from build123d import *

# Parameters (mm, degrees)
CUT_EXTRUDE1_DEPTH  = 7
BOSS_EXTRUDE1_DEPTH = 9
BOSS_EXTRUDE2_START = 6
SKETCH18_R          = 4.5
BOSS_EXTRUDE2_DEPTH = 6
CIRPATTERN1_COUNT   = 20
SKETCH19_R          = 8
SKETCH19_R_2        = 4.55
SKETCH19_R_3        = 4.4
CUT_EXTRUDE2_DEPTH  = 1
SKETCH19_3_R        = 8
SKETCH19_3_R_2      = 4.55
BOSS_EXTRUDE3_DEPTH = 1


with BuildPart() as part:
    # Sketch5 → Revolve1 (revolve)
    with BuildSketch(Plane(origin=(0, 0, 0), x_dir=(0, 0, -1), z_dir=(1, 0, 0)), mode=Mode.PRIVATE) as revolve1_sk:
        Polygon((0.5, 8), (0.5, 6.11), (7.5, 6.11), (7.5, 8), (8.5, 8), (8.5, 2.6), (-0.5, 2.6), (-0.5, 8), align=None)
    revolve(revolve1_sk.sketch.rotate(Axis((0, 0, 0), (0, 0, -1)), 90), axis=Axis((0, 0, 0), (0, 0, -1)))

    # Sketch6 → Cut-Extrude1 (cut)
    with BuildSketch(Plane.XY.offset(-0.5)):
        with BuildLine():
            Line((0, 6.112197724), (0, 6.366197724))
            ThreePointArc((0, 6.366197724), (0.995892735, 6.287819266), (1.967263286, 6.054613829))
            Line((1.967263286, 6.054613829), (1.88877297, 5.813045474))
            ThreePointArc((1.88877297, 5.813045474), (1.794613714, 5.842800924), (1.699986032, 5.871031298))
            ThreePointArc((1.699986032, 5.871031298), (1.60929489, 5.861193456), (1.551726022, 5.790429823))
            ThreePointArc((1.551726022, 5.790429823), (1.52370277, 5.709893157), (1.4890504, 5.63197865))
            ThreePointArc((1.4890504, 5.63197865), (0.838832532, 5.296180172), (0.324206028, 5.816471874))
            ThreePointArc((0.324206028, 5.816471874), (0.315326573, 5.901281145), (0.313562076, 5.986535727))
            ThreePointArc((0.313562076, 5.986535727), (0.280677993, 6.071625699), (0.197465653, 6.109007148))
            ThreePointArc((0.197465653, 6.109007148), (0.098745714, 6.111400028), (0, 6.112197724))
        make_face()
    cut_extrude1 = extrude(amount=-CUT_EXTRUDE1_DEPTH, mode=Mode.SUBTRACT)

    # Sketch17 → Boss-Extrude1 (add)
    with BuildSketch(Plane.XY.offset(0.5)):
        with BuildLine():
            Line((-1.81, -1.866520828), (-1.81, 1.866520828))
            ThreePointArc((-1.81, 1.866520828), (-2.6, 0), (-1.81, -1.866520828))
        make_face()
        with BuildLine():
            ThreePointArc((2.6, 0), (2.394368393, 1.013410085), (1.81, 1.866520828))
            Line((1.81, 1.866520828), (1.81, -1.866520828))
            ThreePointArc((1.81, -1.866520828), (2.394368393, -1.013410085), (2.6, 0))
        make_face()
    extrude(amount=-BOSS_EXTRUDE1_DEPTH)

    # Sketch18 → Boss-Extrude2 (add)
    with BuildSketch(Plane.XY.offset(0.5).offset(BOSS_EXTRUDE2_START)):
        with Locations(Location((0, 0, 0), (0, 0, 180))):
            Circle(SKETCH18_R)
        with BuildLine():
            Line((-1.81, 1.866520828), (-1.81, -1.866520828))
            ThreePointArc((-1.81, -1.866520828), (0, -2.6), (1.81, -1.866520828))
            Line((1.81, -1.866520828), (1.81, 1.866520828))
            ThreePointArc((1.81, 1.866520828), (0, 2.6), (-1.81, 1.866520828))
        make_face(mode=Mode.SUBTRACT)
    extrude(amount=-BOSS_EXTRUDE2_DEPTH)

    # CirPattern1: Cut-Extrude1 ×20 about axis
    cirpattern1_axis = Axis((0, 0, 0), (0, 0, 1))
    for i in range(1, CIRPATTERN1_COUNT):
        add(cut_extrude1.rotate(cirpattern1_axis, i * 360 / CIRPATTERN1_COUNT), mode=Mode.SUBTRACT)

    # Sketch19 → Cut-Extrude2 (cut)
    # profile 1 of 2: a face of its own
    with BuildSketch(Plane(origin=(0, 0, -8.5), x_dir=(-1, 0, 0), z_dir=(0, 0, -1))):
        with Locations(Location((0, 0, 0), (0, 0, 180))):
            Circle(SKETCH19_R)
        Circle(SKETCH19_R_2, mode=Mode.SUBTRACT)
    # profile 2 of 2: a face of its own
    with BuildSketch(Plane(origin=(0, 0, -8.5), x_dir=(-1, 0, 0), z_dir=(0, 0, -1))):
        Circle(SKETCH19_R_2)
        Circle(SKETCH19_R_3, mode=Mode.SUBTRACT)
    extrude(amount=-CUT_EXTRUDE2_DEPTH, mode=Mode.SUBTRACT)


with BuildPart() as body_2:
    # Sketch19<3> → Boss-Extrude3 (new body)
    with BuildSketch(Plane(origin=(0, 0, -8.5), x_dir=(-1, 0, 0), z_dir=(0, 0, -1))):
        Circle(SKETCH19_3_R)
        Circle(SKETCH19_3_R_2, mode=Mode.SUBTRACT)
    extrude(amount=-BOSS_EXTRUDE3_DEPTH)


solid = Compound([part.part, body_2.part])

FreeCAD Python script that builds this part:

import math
import FreeCAD as App
import Part
import Sketcher

V = App.Vector
Q = App.Units.Quantity

doc = App.newDocument("Part")
body = doc.addObject("PartDesign::Body", "Body")

# Sketch on YZ plane
sketch1 = body.newObject("Sketcher::SketchObject", "Sketch")
sketch1.AttachmentSupport = (doc.getObject("YZ_Plane"), [""])
sketch1.MapMode = "FlatFace"
sketch1.addGeometry([
    Part.LineSegment(V(6.1, -0.5, 0), V(8, -0.5, 0)),  # 0
    Part.LineSegment(V(8, -0.5, 0), V(8, 0.5, 0)),  # 1
    Part.LineSegment(V(8, 0.5, 0), V(2.6, 0.5, 0)),  # 2
    Part.LineSegment(V(2.6, 0.5, 0), V(2.6, -8.5, 0)),  # 3
    Part.LineSegment(V(2.6, -8.5, 0), V(8, -8.5, 0)),  # 4
    Part.LineSegment(V(8, -8.5, 0), V(8, -7.5, 0)),  # 5
    Part.LineSegment(V(8, -7.5, 0), V(6.1, -7.5, 0)),  # 6
    Part.LineSegment(V(6.1, -7.5, 0), V(6.1, -0.5, 0)),  # 7
], False)
sketch1.addConstraint([
    Sketcher.Constraint("Coincident", 0, 2, 1, 1),
    Sketcher.Constraint("Coincident", 1, 2, 2, 1),
    Sketcher.Constraint("Coincident", 2, 2, 3, 1),
    Sketcher.Constraint("Coincident", 3, 2, 4, 1),
    Sketcher.Constraint("Coincident", 4, 2, 5, 1),
    Sketcher.Constraint("Coincident", 5, 2, 6, 1),
    Sketcher.Constraint("Coincident", 6, 2, 7, 1),
    Sketcher.Constraint("Coincident", 7, 2, 0, 1),
    Sketcher.Constraint("Horizontal", 0),
    Sketcher.Constraint("Vertical", 1),
    Sketcher.Constraint("Horizontal", 2),
    Sketcher.Constraint("Vertical", 3),
    Sketcher.Constraint("Horizontal", 4),
    Sketcher.Constraint("Vertical", 5),
    Sketcher.Constraint("Horizontal", 6),
    Sketcher.Constraint("Vertical", 7),
    Sketcher.Constraint("Vertical", 1, 2, 4, 2),
    Sketcher.Constraint("Equal", 1, 5),
    Sketcher.Constraint("DistanceY", 1, 1, 1, 2, 1.0),
    Sketcher.Constraint("DistanceY", 3, 2, 3, 1, 9.0),
    Sketcher.Constraint("DistanceX", 2, 2, 2, 1, 5.4),
    Sketcher.Constraint("DistanceX", -1, 1, 0, 2, 8.0),
    Sketcher.Constraint("DistanceX", 0, 1, 0, 2, 1.89),
    Sketcher.Constraint("DistanceY", 0, 2, -1, 1, 0.5),
])
revolution = body.newObject("PartDesign::Revolution", "Revolution")
revolution.Profile = sketch1
revolution.ReferenceAxis = (sketch1, ["V_Axis"])
revolution.Angle = 360

# Sketch on XY plane
sketch2 = body.newObject("Sketcher::SketchObject", "Sketch001")
sketch2.AttachmentSupport = (doc.getObject("XY_Plane"), [""])
sketch2.MapMode = "FlatFace"
sketch2.AttachmentOffset = App.Placement(V(0, 0, -0.5), App.Rotation())
sketch2.addGeometry([
    Part.LineSegment(V(0, 6.37, 0), V(0, 6.11, 0)),  # 0
    Part.ArcOfCircle(Part.Circle(V(0, 0, 0), V(0, 0, 1), 6.11), math.radians(88.15), math.radians(90)),  # 1
    Part.ArcOfCircle(Part.Circle(V(0.19, 5.99, 0), V(0, 0, 1), 0.12), math.radians(-1), math.radians(88)),  # 2
    Part.ArcOfCircle(Part.Circle(V(1.33, 5.96, 0), V(0, 0, 1), 1.02), math.radians(178.79), math.radians(188.37)),  # 3
    Part.ArcOfCircle(Part.Circle(V(0.94, 5.91, 0), V(0, 0, 1), 0.62), math.radians(-172), math.radians(-26)),  # 4
    Part.ArcOfCircle(Part.Circle(V(0.58, 6.09, 0), V(0, 0, 1), 1.02), math.radians(-26.37), math.radians(-16.79)),  # 5
    Part.ArcOfCircle(Part.Circle(V(1.67, 5.76, 0), V(0, 0, 1), 0.12), math.radians(74), math.radians(163)),  # 6
    Part.ArcOfCircle(Part.Circle(V(0, 0, 0), V(0, 0, 1), 6.11), math.radians(72), math.radians(73.85)),  # 7
    Part.LineSegment(V(1.89, 5.81, 0), V(1.97, 6.05, 0)),  # 8
    Part.ArcOfCircle(Part.Circle(V(0, 0, 0), V(0, 0, 1), 6.37), math.radians(72), math.radians(90)),  # 9
], False)
sketch2.addConstraint([
    Sketcher.Constraint("Coincident", 0, 2, 1, 2),
    Sketcher.Constraint("Tangent", 1, 1, 2, 2),
    Sketcher.Constraint("Tangent", 2, 1, 3, 1),
    Sketcher.Constraint("Tangent", 3, 2, 4, 1),
    Sketcher.Constraint("Tangent", 4, 2, 5, 1),
    Sketcher.Constraint("Tangent", 5, 2, 6, 2),
    Sketcher.Constraint("Tangent", 6, 1, 7, 2),
    Sketcher.Constraint("Coincident", 7, 1, 8, 1),
    Sketcher.Constraint("Coincident", 8, 2, 9, 1),
    Sketcher.Constraint("Coincident", 9, 2, 0, 1),
    Sketcher.Constraint("Vertical", 0),
    Sketcher.Constraint("Coincident", 1, 3, -1, 1),
    Sketcher.Constraint("Coincident", 7, 3, -1, 1),
    Sketcher.Constraint("Coincident", 9, 3, -1, 1),
    Sketcher.Constraint("Equal", 3, 5),
    Sketcher.Constraint("Equal", 2, 6),
    Sketcher.Constraint("PointOnObject", 0, 2, -2),
    Sketcher.Constraint("Angle", 8, Q("72 deg")),
    Sketcher.Constraint("Radius", 2, 0.12),
    Sketcher.Constraint("Radius", 3, 1.02),
    Sketcher.Constraint("DistanceY", 0, 2, 0, 1, 0.254),
    Sketcher.Constraint("Distance", 8, 0.254),
    Sketcher.Constraint("Radius", 1, 6.112197),
    Sketcher.Constraint("Radius", 4, 0.617868),
    Sketcher.Constraint("DistanceY", 2, 3, 5, 3, 0.096002),
    Sketcher.Constraint("DistanceX", 2, 3, 4, 3, 0.7419),
    Sketcher.Constraint("DistanceX", 5, 3, 6, 3, 1.091402),
    Sketcher.Constraint("DistanceY", 3, 3, 0, 2, 0.147202),
    Sketcher.Constraint("DistanceY", 6, 3, 7, 1, 0.057279),
])
pocket1 = body.newObject("PartDesign::Pocket", "Pocket")
pocket1.Profile = sketch2
pocket1.Length = 7

# Sketch on XY plane
sketch3 = body.newObject("Sketcher::SketchObject", "Sketch002")
sketch3.AttachmentSupport = (doc.getObject("XY_Plane"), [""])
sketch3.MapMode = "FlatFace"
sketch3.AttachmentOffset = App.Placement(V(0, 0, 0.5), App.Rotation())
sketch3.addGeometry([
    Part.LineSegment(V(-1.8, -1.9, 0), V(-1.8, 1.9, 0)),  # 0
    Part.ArcOfCircle(Part.Circle(V(0, 0, 0), V(0, 0, 1), 2.6), math.radians(134), math.radians(226)),  # 1
    Part.ArcOfCircle(Part.Circle(V(0, 0, 0), V(0, 0, 1), 2.6), math.radians(0), math.radians(46)),  # 2
    Part.LineSegment(V(1.8, 1.9, 0), V(1.8, -1.9, 0)),  # 3
    Part.ArcOfCircle(Part.Circle(V(0, 0, 0), V(0, 0, 1), 2.6), math.radians(-46), math.radians(0)),  # 4
], False)
sketch3.addConstraint([
    Sketcher.Constraint("Coincident", 0, 1, 1, 2),
    Sketcher.Constraint("Coincident", 1, 1, 0, 2),
    Sketcher.Constraint("Coincident", 2, 2, 3, 1),
    Sketcher.Constraint("Coincident", 3, 2, 4, 1),
    Sketcher.Constraint("Tangent", 4, 2, 2, 1),
    Sketcher.Constraint("Vertical", 0),
    Sketcher.Constraint("Vertical", 3),
    Sketcher.Constraint("Coincident", 1, 3, -1, 1),
    Sketcher.Constraint("Coincident", 2, 3, -1, 1),
    Sketcher.Constraint("Equal", 1, 2),
    Sketcher.Constraint("Equal", 2, 4),
    Sketcher.Constraint("PointOnObject", 4, 2, -1),
    Sketcher.Constraint("Horizontal", 1, 1, 2, 2),
    Sketcher.Constraint("Radius", 1, 2.6),
    Sketcher.Constraint("DistanceX", 0, 1, -1, 1, 1.81),
])
pad1 = body.newObject("PartDesign::Pad", "Pad")
pad1.Profile = sketch3
pad1.Length = 9
pad1.Reversed = True

# Sketch on XY plane
sketch4 = body.newObject("Sketcher::SketchObject", "Sketch003")
sketch4.AttachmentSupport = (doc.getObject("XY_Plane"), [""])
sketch4.MapMode = "FlatFace"
sketch4.AttachmentOffset = App.Placement(V(0, 0, 6.5), App.Rotation())
sketch4.addGeometry([
    Part.Circle(V(0, 0, 0), V(0, 0, 1), 4.5),  # 0
    Part.LineSegment(V(-1.8, -1.9, 0), V(-1.8, 1.9, 0)),  # 1
    Part.ArcOfCircle(Part.Circle(V(0, 0, 0), V(0, 0, 1), 2.6), math.radians(46), math.radians(134)),  # 2
    Part.LineSegment(V(1.8, 1.9, 0), V(1.8, -1.9, 0)),  # 3
    Part.ArcOfCircle(Part.Circle(V(0, 0, 0), V(0, 0, 1), 2.6), math.radians(-134), math.radians(-46)),  # 4
], False)
sketch4.addConstraint([
    Sketcher.Constraint("Coincident", 1, 2, 2, 2),
    Sketcher.Constraint("Coincident", 2, 1, 3, 1),
    Sketcher.Constraint("Coincident", 3, 2, 4, 2),
    Sketcher.Constraint("Coincident", 4, 1, 1, 1),
    Sketcher.Constraint("Vertical", 1),
    Sketcher.Constraint("Vertical", 3),
    Sketcher.Constraint("Coincident", 0, 3, -1, 1),
    Sketcher.Constraint("Coincident", 2, 3, -1, 1),
    Sketcher.Constraint("Coincident", 4, 3, -1, 1),
    Sketcher.Constraint("Equal", 2, 4),
    Sketcher.Constraint("Horizontal", 1, 2, 2, 1),
    Sketcher.Constraint("Diameter", 0, 9.0),
    Sketcher.Constraint("Radius", 2, 2.6),
    Sketcher.Constraint("DistanceX", 1, 2, -1, 1, 1.81),
])
pad2 = body.newObject("PartDesign::Pad", "Pad001")
pad2.Profile = sketch4
pad2.Length = 6
pad2.Reversed = True
doc.recompute()

polarpattern = body.newObject("PartDesign::PolarPattern", "PolarPattern")
polarpattern.Originals = [pocket1]
polarpattern.Axis = (doc.getObject("Z_Axis"), [""])
polarpattern.Angle = 360
polarpattern.Occurrences = 20
body.Tip = polarpattern

# Sketch on XY plane
sketch5 = body.newObject("Sketcher::SketchObject", "Sketch004")
sketch5.AttachmentSupport = (doc.getObject("XY_Plane"), [""])
sketch5.MapMode = "FlatFace"
sketch5.AttachmentOffset = App.Placement(V(0, 0, -8.5), App.Rotation())
sketch5.addGeometry([
    Part.Circle(V(0, 0, 0), V(0, 0, 1), 8),
    Part.Circle(V(0, 0, 0), V(0, 0, 1), 4.4),
], False)
sketch5.addConstraint([
    Sketcher.Constraint("Coincident", 0, 3, -1, 1),
    Sketcher.Constraint("Coincident", 1, 3, -1, 1),
    Sketcher.Constraint("Diameter", 0, 16.0),
    Sketcher.Constraint("Diameter", 1, 8.8),
])
pocket2 = body.newObject("PartDesign::Pocket", "Pocket001")
pocket2.Profile = sketch5
pocket2.Length = 1
pocket2.Reversed = True
body2 = doc.addObject("PartDesign::Body", "Body001")

# Sketch on XY plane
sketch6 = body2.newObject("Sketcher::SketchObject", "Sketch005")
sketch6.AttachmentSupport = (doc.getObject("XY_Plane001"), [""])
sketch6.MapMode = "FlatFace"
sketch6.AttachmentOffset = App.Placement(V(0, 0, -8.5), App.Rotation())
sketch6.addGeometry([
    Part.Circle(V(0, 0, 0), V(0, 0, 1), 8),
    Part.Circle(V(0, 0, 0), V(0, 0, 1), 4.5),
], False)
sketch6.addConstraint([
    Sketcher.Constraint("Coincident", 0, 3, -1, 1),
    Sketcher.Constraint("Coincident", 1, 3, -1, 1),
    Sketcher.Constraint("Diameter", 0, 16.0),
    Sketcher.Constraint("Diameter", 1, 9.1),
])
pad3 = body2.newObject("PartDesign::Pad", "Pad002")
pad3.Profile = sketch6
pad3.Length = 1

doc.recompute()
